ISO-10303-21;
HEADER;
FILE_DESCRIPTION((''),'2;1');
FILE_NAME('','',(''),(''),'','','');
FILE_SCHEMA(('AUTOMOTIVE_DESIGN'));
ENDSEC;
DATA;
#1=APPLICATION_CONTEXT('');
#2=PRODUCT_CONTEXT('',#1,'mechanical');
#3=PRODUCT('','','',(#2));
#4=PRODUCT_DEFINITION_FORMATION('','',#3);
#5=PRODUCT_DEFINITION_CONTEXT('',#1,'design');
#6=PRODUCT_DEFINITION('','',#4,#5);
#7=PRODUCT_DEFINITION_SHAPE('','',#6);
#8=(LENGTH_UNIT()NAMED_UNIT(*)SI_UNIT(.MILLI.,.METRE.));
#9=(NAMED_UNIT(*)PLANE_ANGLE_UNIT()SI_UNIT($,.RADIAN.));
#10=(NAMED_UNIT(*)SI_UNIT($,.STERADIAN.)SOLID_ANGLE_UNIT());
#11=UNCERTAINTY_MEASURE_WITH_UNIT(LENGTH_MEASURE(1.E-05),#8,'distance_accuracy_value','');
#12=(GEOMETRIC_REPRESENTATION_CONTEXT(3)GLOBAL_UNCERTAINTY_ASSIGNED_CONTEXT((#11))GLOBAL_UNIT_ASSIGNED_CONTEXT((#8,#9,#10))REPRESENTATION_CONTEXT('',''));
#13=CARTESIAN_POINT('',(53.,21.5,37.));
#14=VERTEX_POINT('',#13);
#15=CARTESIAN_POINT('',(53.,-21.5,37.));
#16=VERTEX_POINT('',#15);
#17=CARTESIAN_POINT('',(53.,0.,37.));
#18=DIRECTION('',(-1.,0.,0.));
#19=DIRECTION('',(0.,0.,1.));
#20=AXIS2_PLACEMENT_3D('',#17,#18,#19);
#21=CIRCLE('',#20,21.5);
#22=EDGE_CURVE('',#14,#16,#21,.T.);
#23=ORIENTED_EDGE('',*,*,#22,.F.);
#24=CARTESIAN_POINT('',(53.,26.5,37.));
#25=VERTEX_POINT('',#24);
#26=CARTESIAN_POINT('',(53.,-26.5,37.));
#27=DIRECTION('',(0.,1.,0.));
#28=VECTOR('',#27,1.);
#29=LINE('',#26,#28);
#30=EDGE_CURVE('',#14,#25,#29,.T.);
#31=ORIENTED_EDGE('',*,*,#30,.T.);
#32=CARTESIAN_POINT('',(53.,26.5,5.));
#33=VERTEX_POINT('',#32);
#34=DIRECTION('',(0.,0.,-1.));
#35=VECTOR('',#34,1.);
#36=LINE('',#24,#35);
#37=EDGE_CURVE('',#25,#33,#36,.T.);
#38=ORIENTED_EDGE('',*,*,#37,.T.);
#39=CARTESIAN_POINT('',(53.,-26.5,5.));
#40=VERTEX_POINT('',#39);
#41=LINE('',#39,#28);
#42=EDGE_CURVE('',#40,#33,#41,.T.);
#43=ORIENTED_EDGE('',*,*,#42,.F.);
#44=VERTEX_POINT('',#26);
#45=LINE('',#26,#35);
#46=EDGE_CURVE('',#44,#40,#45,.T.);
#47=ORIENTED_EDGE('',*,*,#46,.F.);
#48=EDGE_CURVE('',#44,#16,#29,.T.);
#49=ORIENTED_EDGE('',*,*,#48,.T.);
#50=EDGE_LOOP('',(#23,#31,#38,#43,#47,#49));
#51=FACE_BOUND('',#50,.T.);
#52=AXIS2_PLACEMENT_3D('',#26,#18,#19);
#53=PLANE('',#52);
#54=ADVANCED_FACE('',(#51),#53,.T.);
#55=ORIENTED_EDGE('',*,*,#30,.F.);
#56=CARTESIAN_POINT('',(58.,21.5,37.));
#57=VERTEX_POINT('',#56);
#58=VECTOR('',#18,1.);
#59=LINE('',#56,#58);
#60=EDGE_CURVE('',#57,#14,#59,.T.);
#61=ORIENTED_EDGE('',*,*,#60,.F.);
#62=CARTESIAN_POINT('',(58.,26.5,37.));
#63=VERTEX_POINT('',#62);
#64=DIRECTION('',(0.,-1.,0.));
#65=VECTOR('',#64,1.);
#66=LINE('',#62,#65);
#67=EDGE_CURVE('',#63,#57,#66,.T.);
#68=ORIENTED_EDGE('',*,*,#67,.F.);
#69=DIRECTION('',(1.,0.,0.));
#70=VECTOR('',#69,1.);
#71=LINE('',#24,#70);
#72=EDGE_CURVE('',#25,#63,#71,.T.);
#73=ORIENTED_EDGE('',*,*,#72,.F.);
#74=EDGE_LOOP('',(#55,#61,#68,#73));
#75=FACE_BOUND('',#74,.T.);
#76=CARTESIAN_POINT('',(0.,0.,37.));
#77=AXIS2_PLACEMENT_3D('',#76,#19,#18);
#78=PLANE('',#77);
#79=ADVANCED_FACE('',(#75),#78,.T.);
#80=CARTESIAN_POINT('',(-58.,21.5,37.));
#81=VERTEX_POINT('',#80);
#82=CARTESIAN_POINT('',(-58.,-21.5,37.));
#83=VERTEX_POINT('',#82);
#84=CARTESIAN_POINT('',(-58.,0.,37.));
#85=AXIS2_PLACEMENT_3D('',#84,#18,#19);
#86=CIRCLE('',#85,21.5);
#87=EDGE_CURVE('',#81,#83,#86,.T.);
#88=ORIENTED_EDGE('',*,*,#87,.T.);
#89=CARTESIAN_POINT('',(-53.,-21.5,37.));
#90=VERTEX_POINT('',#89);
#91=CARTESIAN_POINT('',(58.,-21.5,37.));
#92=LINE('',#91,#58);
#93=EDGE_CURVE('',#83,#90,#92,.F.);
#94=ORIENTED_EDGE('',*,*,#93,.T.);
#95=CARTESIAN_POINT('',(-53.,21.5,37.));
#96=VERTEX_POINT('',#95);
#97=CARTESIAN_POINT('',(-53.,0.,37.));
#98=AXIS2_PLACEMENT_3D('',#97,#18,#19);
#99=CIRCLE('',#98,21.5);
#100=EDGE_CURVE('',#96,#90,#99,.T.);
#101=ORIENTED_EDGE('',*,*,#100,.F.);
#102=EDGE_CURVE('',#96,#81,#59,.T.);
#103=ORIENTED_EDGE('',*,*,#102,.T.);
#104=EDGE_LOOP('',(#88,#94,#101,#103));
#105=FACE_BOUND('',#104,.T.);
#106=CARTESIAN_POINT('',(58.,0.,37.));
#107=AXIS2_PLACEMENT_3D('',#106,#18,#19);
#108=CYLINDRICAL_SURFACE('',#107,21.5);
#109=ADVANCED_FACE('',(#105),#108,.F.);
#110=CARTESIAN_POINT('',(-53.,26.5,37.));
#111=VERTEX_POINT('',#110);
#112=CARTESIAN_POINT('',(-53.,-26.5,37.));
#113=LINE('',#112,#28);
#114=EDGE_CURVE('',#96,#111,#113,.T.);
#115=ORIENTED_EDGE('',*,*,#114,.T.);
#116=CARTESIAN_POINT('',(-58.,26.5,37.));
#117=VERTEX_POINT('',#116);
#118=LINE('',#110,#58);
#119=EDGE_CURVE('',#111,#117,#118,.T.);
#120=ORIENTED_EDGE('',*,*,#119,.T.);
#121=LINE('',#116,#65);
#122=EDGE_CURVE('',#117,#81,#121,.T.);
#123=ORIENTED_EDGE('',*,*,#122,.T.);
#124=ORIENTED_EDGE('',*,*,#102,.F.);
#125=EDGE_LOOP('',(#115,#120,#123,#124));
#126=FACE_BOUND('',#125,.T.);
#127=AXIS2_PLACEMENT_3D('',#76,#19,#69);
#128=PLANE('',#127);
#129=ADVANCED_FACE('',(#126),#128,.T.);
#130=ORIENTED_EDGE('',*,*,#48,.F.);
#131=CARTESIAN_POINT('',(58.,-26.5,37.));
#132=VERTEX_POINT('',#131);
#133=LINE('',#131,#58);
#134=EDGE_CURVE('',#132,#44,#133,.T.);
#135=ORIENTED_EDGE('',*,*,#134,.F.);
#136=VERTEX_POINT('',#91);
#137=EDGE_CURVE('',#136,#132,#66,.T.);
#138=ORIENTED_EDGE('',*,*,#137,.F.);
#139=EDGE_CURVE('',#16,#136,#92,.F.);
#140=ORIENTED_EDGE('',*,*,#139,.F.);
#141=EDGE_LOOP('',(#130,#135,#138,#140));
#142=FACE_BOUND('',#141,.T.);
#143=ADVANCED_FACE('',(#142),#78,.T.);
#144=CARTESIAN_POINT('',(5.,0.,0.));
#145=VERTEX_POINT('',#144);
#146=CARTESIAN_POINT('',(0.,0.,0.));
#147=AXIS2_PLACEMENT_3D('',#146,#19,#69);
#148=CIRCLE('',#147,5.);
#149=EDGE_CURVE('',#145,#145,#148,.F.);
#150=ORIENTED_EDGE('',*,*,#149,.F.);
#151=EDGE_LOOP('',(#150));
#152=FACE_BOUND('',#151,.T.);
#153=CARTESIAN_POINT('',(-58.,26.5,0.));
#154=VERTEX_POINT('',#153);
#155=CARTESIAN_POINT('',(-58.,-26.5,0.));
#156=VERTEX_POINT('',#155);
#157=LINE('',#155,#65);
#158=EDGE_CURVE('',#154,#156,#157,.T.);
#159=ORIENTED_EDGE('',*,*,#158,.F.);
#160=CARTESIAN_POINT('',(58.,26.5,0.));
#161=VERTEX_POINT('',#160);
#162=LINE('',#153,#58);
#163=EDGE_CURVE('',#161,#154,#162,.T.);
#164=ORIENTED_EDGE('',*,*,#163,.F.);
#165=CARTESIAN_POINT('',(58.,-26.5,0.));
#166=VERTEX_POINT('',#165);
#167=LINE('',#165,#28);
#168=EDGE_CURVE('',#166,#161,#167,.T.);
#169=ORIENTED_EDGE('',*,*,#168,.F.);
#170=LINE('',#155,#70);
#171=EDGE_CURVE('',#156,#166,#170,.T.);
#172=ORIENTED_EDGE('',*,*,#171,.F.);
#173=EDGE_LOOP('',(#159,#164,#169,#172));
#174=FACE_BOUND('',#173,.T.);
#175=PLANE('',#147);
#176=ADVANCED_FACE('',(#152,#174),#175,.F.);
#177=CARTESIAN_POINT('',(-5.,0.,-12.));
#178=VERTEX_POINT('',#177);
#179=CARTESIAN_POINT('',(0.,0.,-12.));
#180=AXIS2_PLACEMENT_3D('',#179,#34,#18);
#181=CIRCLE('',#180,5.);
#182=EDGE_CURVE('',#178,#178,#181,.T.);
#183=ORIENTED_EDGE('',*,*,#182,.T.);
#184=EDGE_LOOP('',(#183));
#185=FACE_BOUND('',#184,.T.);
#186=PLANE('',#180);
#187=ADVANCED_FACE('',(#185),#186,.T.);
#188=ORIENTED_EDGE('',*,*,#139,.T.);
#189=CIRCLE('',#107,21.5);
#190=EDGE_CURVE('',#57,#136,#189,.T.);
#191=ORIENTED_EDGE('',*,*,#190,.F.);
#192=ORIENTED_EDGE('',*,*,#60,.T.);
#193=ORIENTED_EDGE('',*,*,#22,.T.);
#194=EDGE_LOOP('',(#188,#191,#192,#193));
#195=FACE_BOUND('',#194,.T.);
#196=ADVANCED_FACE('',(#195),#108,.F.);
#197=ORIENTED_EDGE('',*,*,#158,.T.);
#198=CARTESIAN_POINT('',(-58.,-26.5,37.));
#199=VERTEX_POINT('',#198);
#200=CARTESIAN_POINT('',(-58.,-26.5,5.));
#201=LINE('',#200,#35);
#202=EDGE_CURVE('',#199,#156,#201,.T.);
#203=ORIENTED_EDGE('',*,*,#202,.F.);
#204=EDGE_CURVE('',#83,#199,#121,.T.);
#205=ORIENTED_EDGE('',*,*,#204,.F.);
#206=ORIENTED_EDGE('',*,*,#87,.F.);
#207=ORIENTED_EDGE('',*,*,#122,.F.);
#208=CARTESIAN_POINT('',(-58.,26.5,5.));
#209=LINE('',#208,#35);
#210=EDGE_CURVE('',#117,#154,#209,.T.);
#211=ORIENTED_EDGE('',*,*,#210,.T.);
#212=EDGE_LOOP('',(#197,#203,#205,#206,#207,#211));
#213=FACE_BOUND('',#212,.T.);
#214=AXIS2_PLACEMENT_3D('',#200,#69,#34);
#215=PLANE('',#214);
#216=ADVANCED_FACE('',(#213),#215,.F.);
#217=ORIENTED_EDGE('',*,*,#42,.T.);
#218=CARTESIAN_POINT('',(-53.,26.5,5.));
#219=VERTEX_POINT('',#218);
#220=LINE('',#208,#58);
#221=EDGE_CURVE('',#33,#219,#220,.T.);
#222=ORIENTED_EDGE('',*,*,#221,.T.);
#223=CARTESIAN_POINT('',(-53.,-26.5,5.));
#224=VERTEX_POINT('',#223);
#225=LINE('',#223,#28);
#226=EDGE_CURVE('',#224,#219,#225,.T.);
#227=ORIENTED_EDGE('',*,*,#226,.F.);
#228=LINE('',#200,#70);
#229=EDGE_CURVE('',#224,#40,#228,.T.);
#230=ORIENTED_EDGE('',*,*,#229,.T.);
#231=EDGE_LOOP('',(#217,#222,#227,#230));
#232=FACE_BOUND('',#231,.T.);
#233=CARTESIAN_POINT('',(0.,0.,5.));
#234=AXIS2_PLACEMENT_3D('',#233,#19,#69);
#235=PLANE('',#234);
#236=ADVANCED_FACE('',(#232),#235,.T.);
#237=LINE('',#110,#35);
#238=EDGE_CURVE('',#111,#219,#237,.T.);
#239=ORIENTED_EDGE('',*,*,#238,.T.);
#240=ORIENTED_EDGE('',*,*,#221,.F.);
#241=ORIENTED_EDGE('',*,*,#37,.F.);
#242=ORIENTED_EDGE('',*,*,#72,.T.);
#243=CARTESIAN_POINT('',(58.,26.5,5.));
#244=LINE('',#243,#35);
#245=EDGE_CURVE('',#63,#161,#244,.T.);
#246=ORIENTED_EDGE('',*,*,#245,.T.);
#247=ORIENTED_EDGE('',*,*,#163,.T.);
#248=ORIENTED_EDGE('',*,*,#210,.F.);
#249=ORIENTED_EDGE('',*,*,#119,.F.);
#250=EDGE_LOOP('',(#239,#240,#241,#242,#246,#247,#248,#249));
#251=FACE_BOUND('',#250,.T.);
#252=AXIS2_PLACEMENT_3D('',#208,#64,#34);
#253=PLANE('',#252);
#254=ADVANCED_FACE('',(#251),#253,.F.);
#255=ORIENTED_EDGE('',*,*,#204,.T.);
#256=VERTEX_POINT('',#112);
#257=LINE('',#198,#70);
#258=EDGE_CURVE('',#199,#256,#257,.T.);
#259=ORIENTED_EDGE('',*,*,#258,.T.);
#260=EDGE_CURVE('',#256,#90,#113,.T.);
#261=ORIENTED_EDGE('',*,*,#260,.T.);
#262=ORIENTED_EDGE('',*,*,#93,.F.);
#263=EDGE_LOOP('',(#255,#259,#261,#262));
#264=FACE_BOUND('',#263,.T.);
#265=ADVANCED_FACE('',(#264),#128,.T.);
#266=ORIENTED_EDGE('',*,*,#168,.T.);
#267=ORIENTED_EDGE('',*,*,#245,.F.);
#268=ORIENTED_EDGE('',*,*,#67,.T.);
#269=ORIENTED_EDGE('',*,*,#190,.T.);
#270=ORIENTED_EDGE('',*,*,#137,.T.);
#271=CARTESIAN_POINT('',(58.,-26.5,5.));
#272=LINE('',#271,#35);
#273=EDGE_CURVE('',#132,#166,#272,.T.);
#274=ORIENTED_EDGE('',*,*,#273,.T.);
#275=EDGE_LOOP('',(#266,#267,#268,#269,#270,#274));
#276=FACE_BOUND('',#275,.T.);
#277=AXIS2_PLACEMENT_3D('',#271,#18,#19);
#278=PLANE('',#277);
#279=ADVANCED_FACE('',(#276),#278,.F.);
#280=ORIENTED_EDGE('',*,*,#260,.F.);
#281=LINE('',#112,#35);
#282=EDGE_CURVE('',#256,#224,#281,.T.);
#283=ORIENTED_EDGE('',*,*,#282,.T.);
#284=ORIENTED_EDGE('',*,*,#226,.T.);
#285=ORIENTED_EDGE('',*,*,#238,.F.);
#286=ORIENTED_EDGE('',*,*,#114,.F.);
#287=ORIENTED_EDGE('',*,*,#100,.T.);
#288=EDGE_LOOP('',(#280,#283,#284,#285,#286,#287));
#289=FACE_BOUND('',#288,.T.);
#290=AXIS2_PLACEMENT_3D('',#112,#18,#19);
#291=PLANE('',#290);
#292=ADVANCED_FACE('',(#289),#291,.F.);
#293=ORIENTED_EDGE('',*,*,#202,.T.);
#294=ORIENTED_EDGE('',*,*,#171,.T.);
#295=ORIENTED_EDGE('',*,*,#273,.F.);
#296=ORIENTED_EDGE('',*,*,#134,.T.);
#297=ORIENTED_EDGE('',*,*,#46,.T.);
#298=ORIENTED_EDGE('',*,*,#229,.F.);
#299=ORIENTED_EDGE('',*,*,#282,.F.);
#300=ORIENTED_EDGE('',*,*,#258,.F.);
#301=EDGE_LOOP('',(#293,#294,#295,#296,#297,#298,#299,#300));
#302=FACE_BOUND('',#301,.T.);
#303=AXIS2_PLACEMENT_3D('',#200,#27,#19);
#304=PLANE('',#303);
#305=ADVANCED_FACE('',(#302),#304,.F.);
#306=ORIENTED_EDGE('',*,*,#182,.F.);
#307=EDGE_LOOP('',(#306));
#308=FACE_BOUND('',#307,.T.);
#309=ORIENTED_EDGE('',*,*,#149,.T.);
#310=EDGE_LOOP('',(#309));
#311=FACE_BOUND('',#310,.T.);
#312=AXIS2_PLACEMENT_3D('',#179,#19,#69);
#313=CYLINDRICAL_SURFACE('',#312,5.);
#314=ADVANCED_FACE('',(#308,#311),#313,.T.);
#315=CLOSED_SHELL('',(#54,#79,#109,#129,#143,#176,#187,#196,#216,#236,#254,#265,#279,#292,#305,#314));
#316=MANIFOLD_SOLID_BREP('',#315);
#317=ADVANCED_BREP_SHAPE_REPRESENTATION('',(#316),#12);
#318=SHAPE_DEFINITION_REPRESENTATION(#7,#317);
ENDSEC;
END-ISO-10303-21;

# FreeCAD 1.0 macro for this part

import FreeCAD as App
import Part
import Sketcher
Q = App.Units.Quantity


def add_polygon(sketch, points):
    """Adds a closed chain of lines whose ends are joined by coincident constraints."""
    first, n = sketch.GeometryCount, len(points)
    for a, b in zip(points, points[1:] + points[:1]):
        sketch.addGeometry(Part.LineSegment(App.Vector(*a, 0), App.Vector(*b, 0)), False)
    for i in range(n):
        sketch.addConstraint(Sketcher.Constraint("Coincident", first + i, 2, first + (i + 1) % n, 1))

doc = App.newDocument("Part")
body = doc.addObject("PartDesign::Body", "Body")

# Sketch on XY plane
sketch1 = body.newObject("Sketcher::SketchObject", "Sketch")
sketch1.AttachmentSupport = (doc.getObject("XY_Plane"), [""])
sketch1.MapMode = "FlatFace"
add_polygon(sketch1, [(-58, 26), (-58, -26), (58, -26), (58, 26)])  # lines 0-3
sketch1.addConstraint(Sketcher.Constraint("Vertical", 0))
sketch1.addConstraint(Sketcher.Constraint("Horizontal", 1))
sketch1.addConstraint(Sketcher.Constraint("Vertical", 2))
sketch1.addConstraint(Sketcher.Constraint("Horizontal", 3))
sketch1.addConstraint(Sketcher.Constraint("Symmetric", 0, 2, 2, 2, -1, 1))
sketch1.addConstraint(Sketcher.Constraint("DistanceX", 1, 1, 1, 2, Q("116 mm")))
sketch1.addConstraint(Sketcher.Constraint("DistanceY", 0, 2, 0, 1, Q("53 mm")))
pad1 = body.newObject("PartDesign::Pad", "Pad")
pad1.Profile = sketch1
pad1.Length = 5

# Sketch on XY plane
sketch2 = body.newObject("Sketcher::SketchObject", "Sketch001")
sketch2.AttachmentSupport = (doc.getObject("XY_Plane"), [""])
sketch2.MapMode = "FlatFace"
sketch2.AttachmentOffset = App.Placement(App.Vector(0, 0, 5), App.Rotation())
add_polygon(sketch2, [(-58, 26), (-58, -26), (-53, -26), (-53, 26)])  # lines 0-3
sketch2.addConstraint(Sketcher.Constraint("Vertical", 0))
sketch2.addConstraint(Sketcher.Constraint("Horizontal", 1))
sketch2.addConstraint(Sketcher.Constraint("Vertical", 2))
sketch2.addConstraint(Sketcher.Constraint("Horizontal", 3))
sketch2.addConstraint(Sketcher.Constraint("DistanceX", 1, 1, 1, 2, Q("5 mm")))
sketch2.addConstraint(Sketcher.Constraint("DistanceY", 0, 2, 0, 1, Q("53 mm")))
sketch2.addConstraint(Sketcher.Constraint("DistanceX", 0, 2, -1, 1, Q("58 mm")))
sketch2.addConstraint(Sketcher.Constraint("DistanceY", 0, 2, -1, 1, Q("26.5 mm")))
pad2 = body.newObject("PartDesign::Pad", "Pad001")
pad2.Profile = sketch2
pad2.Length = 32
doc.recompute()

mirrored = body.newObject("PartDesign::Mirrored", "Mirrored")
mirrored.Originals = [pad2]
mirrored.MirrorPlane = (doc.getObject("YZ_Plane"), [""])
body.Tip = mirrored

# Sketch on YZ plane
sketch3 = body.newObject("Sketcher::SketchObject", "Sketch002")
sketch3.AttachmentSupport = (doc.getObject("YZ_Plane"), [""])
sketch3.MapMode = "FlatFace"
sketch3.AttachmentOffset = App.Placement(App.Vector(0, 0, -58), App.Rotation())
sketch3.addGeometry(Part.Circle(App.Vector(0, 37, 0), App.Vector(0, 0, 1), 22), False)
sketch3.addConstraint(Sketcher.Constraint("PointOnObject", 0, 3, -2))
sketch3.addConstraint(Sketcher.Constraint("Diameter", 0, Q("43 mm")))
sketch3.addConstraint(Sketcher.Constraint("DistanceY", -1, 1, 0, 3, Q("37 mm")))
pocket1 = body.newObject("PartDesign::Pocket", "Pocket")
pocket1.Profile = sketch3
pocket1.Type = "ThroughAll"
pocket1.Reversed = True

# Sketch on XY plane
sketch4 = body.newObject("Sketcher::SketchObject", "Sketch003")
sketch4.AttachmentSupport = (doc.getObject("XY_Plane"), [""])
sketch4.MapMode = "FlatFace"
sketch4.addGeometry(Part.Circle(App.Vector(0, 0, 0), App.Vector(0, 0, 1), 5), False)
sketch4.addConstraint(Sketcher.Constraint("Coincident", 0, 3, -1, 1))
sketch4.addConstraint(Sketcher.Constraint("Diameter", 0, Q("10 mm")))
pad3 = body.newObject("PartDesign::Pad", "Pad002")
pad3.Profile = sketch4
pad3.Length = 12
pad3.Reversed = True

doc.recompute()
